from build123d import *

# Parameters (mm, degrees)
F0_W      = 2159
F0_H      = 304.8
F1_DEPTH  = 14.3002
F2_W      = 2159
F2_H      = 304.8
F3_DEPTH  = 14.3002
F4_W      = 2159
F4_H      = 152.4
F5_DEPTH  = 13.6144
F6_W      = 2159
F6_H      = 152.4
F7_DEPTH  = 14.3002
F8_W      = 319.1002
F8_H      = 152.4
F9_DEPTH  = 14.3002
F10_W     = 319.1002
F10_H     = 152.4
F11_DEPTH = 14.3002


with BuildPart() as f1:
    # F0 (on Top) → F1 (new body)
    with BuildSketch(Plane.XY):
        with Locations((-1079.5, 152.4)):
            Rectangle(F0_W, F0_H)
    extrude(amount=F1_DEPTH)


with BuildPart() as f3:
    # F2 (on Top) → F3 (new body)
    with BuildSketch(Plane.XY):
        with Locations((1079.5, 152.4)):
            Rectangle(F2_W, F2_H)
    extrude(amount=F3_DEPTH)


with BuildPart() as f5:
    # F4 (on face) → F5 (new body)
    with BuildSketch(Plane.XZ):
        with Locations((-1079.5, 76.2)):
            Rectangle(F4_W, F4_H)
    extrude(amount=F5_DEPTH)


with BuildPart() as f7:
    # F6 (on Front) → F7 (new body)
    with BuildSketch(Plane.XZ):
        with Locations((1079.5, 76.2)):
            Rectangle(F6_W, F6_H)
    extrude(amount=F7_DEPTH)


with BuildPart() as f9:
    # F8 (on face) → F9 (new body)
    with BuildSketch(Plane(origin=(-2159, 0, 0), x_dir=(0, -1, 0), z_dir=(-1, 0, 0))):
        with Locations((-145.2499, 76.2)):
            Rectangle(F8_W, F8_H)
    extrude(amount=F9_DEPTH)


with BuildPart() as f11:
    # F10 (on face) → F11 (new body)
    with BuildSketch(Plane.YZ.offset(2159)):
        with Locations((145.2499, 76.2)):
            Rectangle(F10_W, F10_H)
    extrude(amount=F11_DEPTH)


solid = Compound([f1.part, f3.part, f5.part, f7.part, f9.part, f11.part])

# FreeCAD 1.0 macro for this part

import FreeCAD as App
import Part
import Sketcher
Q = App.Units.Quantity

doc = App.newDocument("Part")
params = doc.addObject("Spreadsheet::Sheet", "Params")
for row, (alias, value) in enumerate([
    ("sketch1_width", "85 in"),
    ("sketch1_height", "12 in"),
    ("pad1_length", "0.563 in"),
    ("sketch2_width", "85 in"),
    ("sketch2_height", "12 in"),
    ("pad2_length", "0.563 in"),
    ("sketch3_width", "85 in"),
    ("sketch3_height", "6 in"),
    ("pad3_length", "0.536 in"),
    ("sketch4_width", "85 in"),
    ("sketch4_height", "6 in"),
    ("pad4_length", "0.563 in"),
    ("sketch5_height", "6 in"),
    ("sketch5_width", "12.563 in"),
    ("pad5_length", "0.563 in"),
    ("sketch6_height", "6 in"),
    ("sketch6_width", "12.563 in"),
    ("pad6_length", "0.563 in"),
], start=1):
    params.set(f"A{row}", alias)
    params.set(f"B{row}", "=" + value)
    params.setAlias(f"B{row}", alias)

body = doc.addObject("PartDesign::Body", "Body")

# Sketch on XY plane
sketch1 = body.newObject("Sketcher::SketchObject", "Sketch")
sketch1.AttachmentSupport = (doc.getObject("XY_Plane"), [""])
sketch1.MapMode = "FlatFace"
sketch1.addGeometry([
    Part.LineSegment(App.Vector(-2159, 305, 0), App.Vector(-2159, 0, 0)),
    Part.LineSegment(App.Vector(-2159, 0, 0), App.Vector(0, 0, 0)),
    Part.LineSegment(App.Vector(0, 0, 0), App.Vector(0, 305, 0)),
    Part.LineSegment(App.Vector(0, 305, 0), App.Vector(-2159, 305, 0)),
], False)
sketch1.addConstraint([
    Sketcher.Constraint("Coincident", 0, 2, 1, 1),
    Sketcher.Constraint("Coincident", 1, 2, 2, 1),
    Sketcher.Constraint("Coincident", 2, 2, 3, 1),
    Sketcher.Constraint("Coincident", 3, 2, 0, 1),
    Sketcher.Constraint("Vertical", 0),
    Sketcher.Constraint("Horizontal", 1),
    Sketcher.Constraint("Vertical", 2),
    Sketcher.Constraint("Horizontal", 3),
    Sketcher.Constraint("Coincident", 1, 2, -1, 1),
    Sketcher.Constraint("DistanceX", 1, 1, 1, 2, Q("85 in")),
    Sketcher.Constraint("DistanceY", 0, 2, 0, 1, Q("12 in")),
])
sketch1.setExpression("Constraints[9]", "Params.sketch1_width")
sketch1.setExpression("Constraints[10]", "Params.sketch1_height")
pad1 = body.newObject("PartDesign::Pad", "Pad")
pad1.Profile = sketch1
pad1.setExpression("Length", "Params.pad1_length")
body2 = doc.addObject("PartDesign::Body", "Body001")

# Sketch on XY plane
sketch2 = body2.newObject("Sketcher::SketchObject", "Sketch001")
sketch2.AttachmentSupport = (doc.getObject("XY_Plane001"), [""])
sketch2.MapMode = "FlatFace"
sketch2.addGeometry([
    Part.LineSegment(App.Vector(0, 305, 0), App.Vector(0, 0, 0)),
    Part.LineSegment(App.Vector(0, 0, 0), App.Vector(2159, 0, 0)),
    Part.LineSegment(App.Vector(2159, 0, 0), App.Vector(2159, 305, 0)),
    Part.LineSegment(App.Vector(2159, 305, 0), App.Vector(0, 305, 0)),
], False)
sketch2.addConstraint([
    Sketcher.Constraint("Coincident", 0, 2, 1, 1),
    Sketcher.Constraint("Coincident", 1, 2, 2, 1),
    Sketcher.Constraint("Coincident", 2, 2, 3, 1),
    Sketcher.Constraint("Coincident", 3, 2, 0, 1),
    Sketcher.Constraint("Vertical", 0),
    Sketcher.Constraint("Horizontal", 1),
    Sketcher.Constraint("Vertical", 2),
    Sketcher.Constraint("Horizontal", 3),
    Sketcher.Constraint("Coincident", 0, 2, -1, 1),
    Sketcher.Constraint("DistanceX", 1, 1, 1, 2, Q("85 in")),
    Sketcher.Constraint("DistanceY", 0, 2, 0, 1, Q("12 in")),
])
sketch2.setExpression("Constraints[9]", "Params.sketch2_width")
sketch2.setExpression("Constraints[10]", "Params.sketch2_height")
pad2 = body2.newObject("PartDesign::Pad", "Pad001")
pad2.Profile = sketch2
pad2.setExpression("Length", "Params.pad2_length")
body3 = doc.addObject("PartDesign::Body", "Body002")

# Sketch on XZ plane
sketch3 = body3.newObject("Sketcher::SketchObject", "Sketch002")
sketch3.AttachmentSupport = (doc.getObject("XZ_Plane002"), [""])
sketch3.MapMode = "FlatFace"
sketch3.addGeometry([
    Part.LineSegment(App.Vector(-2159, 152, 0), App.Vector(-2159, 0, 0)),
    Part.LineSegment(App.Vector(-2159, 0, 0), App.Vector(0, 0, 0)),
    Part.LineSegment(App.Vector(0, 0, 0), App.Vector(0, 152, 0)),
    Part.LineSegment(App.Vector(0, 152, 0), App.Vector(-2159, 152, 0)),
], False)
sketch3.addConstraint([
    Sketcher.Constraint("Coincident", 0, 2, 1, 1),
    Sketcher.Constraint("Coincident", 1, 2, 2, 1),
    Sketcher.Constraint("Coincident", 2, 2, 3, 1),
    Sketcher.Constraint("Coincident", 3, 2, 0, 1),
    Sketcher.Constraint("Vertical", 0),
    Sketcher.Constraint("Horizontal", 1),
    Sketcher.Constraint("Vertical", 2),
    Sketcher.Constraint("Horizontal", 3),
    Sketcher.Constraint("Coincident", 1, 2, -1, 1),
    Sketcher.Constraint("DistanceX", 1, 1, 1, 2, Q("85 in")),
    Sketcher.Constraint("DistanceY", 0, 2, 0, 1, Q("6 in")),
])
sketch3.setExpression("Constraints[9]", "Params.sketch3_width")
sketch3.setExpression("Constraints[10]", "Params.sketch3_height")
pad3 = body3.newObject("PartDesign::Pad", "Pad002")
pad3.Profile = sketch3
pad3.setExpression("Length", "Params.pad3_length")
body4 = doc.addObject("PartDesign::Body", "Body003")

# Sketch on XZ plane
sketch4 = body4.newObject("Sketcher::SketchObject", "Sketch003")
sketch4.AttachmentSupport = (doc.getObject("XZ_Plane003"), [""])
sketch4.MapMode = "FlatFace"
sketch4.addGeometry([
    Part.LineSegment(App.Vector(0, 152, 0), App.Vector(0, 0, 0)),
    Part.LineSegment(App.Vector(0, 0, 0), App.Vector(2159, 0, 0)),
    Part.LineSegment(App.Vector(2159, 0, 0), App.Vector(2159, 152, 0)),
    Part.LineSegment(App.Vector(2159, 152, 0), App.Vector(0, 152, 0)),
], False)
sketch4.addConstraint([
    Sketcher.Constraint("Coincident", 0, 2, 1, 1),
    Sketcher.Constraint("Coincident", 1, 2, 2, 1),
    Sketcher.Constraint("Coincident", 2, 2, 3, 1),
    Sketcher.Constraint("Coincident", 3, 2, 0, 1),
    Sketcher.Constraint("Vertical", 0),
    Sketcher.Constraint("Horizontal", 1),
    Sketcher.Constraint("Vertical", 2),
    Sketcher.Constraint("Horizontal", 3),
    Sketcher.Constraint("Coincident", 0, 2, -1, 1),
    Sketcher.Constraint("DistanceX", 1, 1, 1, 2, Q("85 in")),
    Sketcher.Constraint("DistanceY", 0, 2, 0, 1, Q("6 in")),
])
sketch4.setExpression("Constraints[9]", "Params.sketch4_width")
sketch4.setExpression("Constraints[10]", "Params.sketch4_height")
pad4 = body4.newObject("PartDesign::Pad", "Pad003")
pad4.Profile = sketch4
pad4.setExpression("Length", "Params.pad4_length")
body5 = doc.addObject("PartDesign::Body", "Body004")

# Sketch on YZ plane
sketch5 = body5.newObject("Sketcher::SketchObject", "Sketch004")
sketch5.AttachmentSupport = (doc.getObject("YZ_Plane004"), [""])
sketch5.MapMode = "FlatFace"
sketch5.AttachmentOffset = App.Placement(App.Vector(0, 0, -85 * 25.4), App.Rotation())
sketch5.addGeometry([
    Part.LineSegment(App.Vector(305, 152, 0), App.Vector(305, 0, 0)),
    Part.LineSegment(App.Vector(305, 0, 0), App.Vector(-14, 0, 0)),
    Part.LineSegment(App.Vector(-14, 0, 0), App.Vector(-14, 152, 0)),
    Part.LineSegment(App.Vector(-14, 152, 0), App.Vector(305, 152, 0)),
], False)
sketch5.addConstraint([
    Sketcher.Constraint("Coincident", 0, 2, 1, 1),
    Sketcher.Constraint("Coincident", 1, 2, 2, 1),
    Sketcher.Constraint("Coincident", 2, 2, 3, 1),
    Sketcher.Constraint("Coincident", 3, 2, 0, 1),
    Sketcher.Constraint("Vertical", 0),
    Sketcher.Constraint("Horizontal", 1),
    Sketcher.Constraint("Vertical", 2),
    Sketcher.Constraint("Horizontal", 3),
    Sketcher.Constraint("PointOnObject", 0, 2, -1),
    Sketcher.Constraint("DistanceY", 0, 2, 0, 1, Q("6 in")),
    Sketcher.Constraint("DistanceX", -1, 1, 0, 2, Q("12 in")),
    Sketcher.Constraint("DistanceX", 1, 2, 1, 1, Q("12.563 in")),
])
sketch5.setExpression("Constraints[9]", "Params.sketch5_height")
sketch5.setExpression("Constraints[11]", "Params.sketch5_width")
pad5 = body5.newObject("PartDesign::Pad", "Pad004")
pad5.Profile = sketch5
pad5.setExpression("Length", "Params.pad5_length")
pad5.Reversed = True
body6 = doc.addObject("PartDesign::Body", "Body005")

# Sketch on YZ plane
sketch6 = body6.newObject("Sketcher::SketchObject", "Sketch005")
sketch6.AttachmentSupport = (doc.getObject("YZ_Plane005"), [""])
sketch6.MapMode = "FlatFace"
sketch6.AttachmentOffset = App.Placement(App.Vector(0, 0, 85 * 25.4), App.Rotation())
sketch6.addGeometry([
    Part.LineSegment(App.Vector(-14, 152, 0), App.Vector(-14, 0, 0)),
    Part.LineSegment(App.Vector(-14, 0, 0), App.Vector(305, 0, 0)),
    Part.LineSegment(App.Vector(305, 0, 0), App.Vector(305, 152, 0)),
    Part.LineSegment(App.Vector(305, 152, 0), App.Vector(-14, 152, 0)),
], False)
sketch6.addConstraint([
    Sketcher.Constraint("Coincident", 0, 2, 1, 1),
    Sketcher.Constraint("Coincident", 1, 2, 2, 1),
    Sketcher.Constraint("Coincident", 2, 2, 3, 1),
    Sketcher.Constraint("Coincident", 3, 2, 0, 1),
    Sketcher.Constraint("Vertical", 0),
    Sketcher.Constraint("Horizontal", 1),
    Sketcher.Constraint("Vertical", 2),
    Sketcher.Constraint("Horizontal", 3),
    Sketcher.Constraint("PointOnObject", 0, 2, -1),
    Sketcher.Constraint("DistanceY", 0, 2, 0, 1, Q("6 in")),
    Sketcher.Constraint("DistanceX", -1, 1, 1, 2, Q("12 in")),
    Sketcher.Constraint("DistanceX", 1, 1, 1, 2, Q("12.563 in")),
])
sketch6.setExpression("Constraints[9]", "Params.sketch6_height")
sketch6.setExpression("Constraints[11]", "Params.sketch6_width")
pad6 = body6.newObject("PartDesign::Pad", "Pad005")
pad6.Profile = sketch6
pad6.setExpression("Length", "Params.pad6_length")

doc.recompute()
